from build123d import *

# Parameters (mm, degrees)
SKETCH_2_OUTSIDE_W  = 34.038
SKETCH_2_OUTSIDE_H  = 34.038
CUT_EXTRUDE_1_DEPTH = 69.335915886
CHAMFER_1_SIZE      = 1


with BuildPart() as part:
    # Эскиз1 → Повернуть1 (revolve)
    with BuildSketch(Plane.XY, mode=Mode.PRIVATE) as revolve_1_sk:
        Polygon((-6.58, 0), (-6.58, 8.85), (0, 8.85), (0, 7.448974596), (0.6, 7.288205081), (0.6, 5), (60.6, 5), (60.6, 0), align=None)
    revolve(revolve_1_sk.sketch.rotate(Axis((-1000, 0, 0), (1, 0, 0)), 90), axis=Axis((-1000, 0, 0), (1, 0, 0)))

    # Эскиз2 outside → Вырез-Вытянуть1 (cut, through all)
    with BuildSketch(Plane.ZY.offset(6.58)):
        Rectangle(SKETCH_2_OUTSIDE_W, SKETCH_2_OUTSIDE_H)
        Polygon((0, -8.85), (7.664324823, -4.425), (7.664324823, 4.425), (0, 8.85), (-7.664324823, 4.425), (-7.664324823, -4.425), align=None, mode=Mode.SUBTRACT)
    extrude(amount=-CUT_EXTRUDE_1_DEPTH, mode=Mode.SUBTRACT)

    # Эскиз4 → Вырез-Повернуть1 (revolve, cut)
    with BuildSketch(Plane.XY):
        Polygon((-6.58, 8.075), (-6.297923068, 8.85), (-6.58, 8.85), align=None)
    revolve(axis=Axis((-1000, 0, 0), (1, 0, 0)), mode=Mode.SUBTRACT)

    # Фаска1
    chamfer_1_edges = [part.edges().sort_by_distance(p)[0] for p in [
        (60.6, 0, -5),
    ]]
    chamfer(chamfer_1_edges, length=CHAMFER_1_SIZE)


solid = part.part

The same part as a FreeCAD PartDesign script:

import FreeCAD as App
import Part
import Sketcher
Q = App.Units.Quantity


def edges_at(feature, points):
    """Names of the edges that pass closest to the given points."""
    edges = feature.Shape.Edges
    near = lambda p: min(range(len(edges)), key=lambda i: edges[i].distToShape(Part.Vertex(*p))[0])
    return sorted({f"Edge{near(p) + 1}" for p in points})

doc = App.newDocument("Part")
params = doc.addObject("Spreadsheet::Sheet", "Params")
for row, (alias, value) in enumerate([
    ("sketch1_width", "60 mm"),
    ("sketch1_height", "5 mm"),
    ("sketch1_width2", "67.18 mm"),
    ("sketch1_width3", "6.58 mm"),
    ("sketch1_height2", "8.85 mm"),
    ("revolution_angle", "360 deg"),
    ("sketch2_width", "8.85 mm"),
    ("groove_angle", "360 deg"),
    ("chamfer_size", "1 mm"),
], start=1):
    params.set(f"A{row}", alias)
    params.set(f"B{row}", "=" + value)
    params.setAlias(f"B{row}", alias)

body = doc.addObject("PartDesign::Body", "Body")

sketch1 = body.newObject("Sketcher::SketchObject", "Sketch")
sketch1.AttachmentSupport = (doc.getObject("XY_Plane"), [""])
sketch1.MapMode = "FlatFace"
sketch1.addGeometry(Part.LineSegment(App.Vector(-6.6, 8.8, 0), App.Vector(-6.6, 0, 0)), False)
sketch1.addGeometry(Part.LineSegment(App.Vector(-6.6, 0, 0), App.Vector(60.6, 0, 0)), False)
sketch1.addGeometry(Part.LineSegment(App.Vector(60.6, 0, 0), App.Vector(60.6, 5, 0)), False)
sketch1.addGeometry(Part.LineSegment(App.Vector(60.6, 5, 0), App.Vector(0.6, 5, 0)), False)
sketch1.addGeometry(Part.LineSegment(App.Vector(0.6, 5, 0), App.Vector(0.6, 7.3, 0)), False)
sketch1.addGeometry(Part.LineSegment(App.Vector(0.6, 7.3, 0), App.Vector(0, 7.4, 0)), False)
sketch1.addGeometry(Part.LineSegment(App.Vector(0, 7.4, 0), App.Vector(0, 8.8, 0)), False)
sketch1.addGeometry(Part.LineSegment(App.Vector(0, 8.8, 0), App.Vector(-6.6, 8.8, 0)), False)
sketch1.addConstraint(Sketcher.Constraint("Coincident", 0, 2, 1, 1))
sketch1.addConstraint(Sketcher.Constraint("Coincident", 1, 2, 2, 1))
sketch1.addConstraint(Sketcher.Constraint("Coincident", 2, 2, 3, 1))
sketch1.addConstraint(Sketcher.Constraint("Coincident", 3, 2, 4, 1))
sketch1.addConstraint(Sketcher.Constraint("Coincident", 4, 2, 5, 1))
sketch1.addConstraint(Sketcher.Constraint("Coincident", 5, 2, 6, 1))
sketch1.addConstraint(Sketcher.Constraint("Coincident", 6, 2, 7, 1))
sketch1.addConstraint(Sketcher.Constraint("Coincident", 7, 2, 0, 1))
sketch1.addConstraint(Sketcher.Constraint("Vertical", 0))
sketch1.addConstraint(Sketcher.Constraint("Horizontal", 1))
sketch1.addConstraint(Sketcher.Constraint("Vertical", 2))
sketch1.addConstraint(Sketcher.Constraint("Horizontal", 3))
sketch1.addConstraint(Sketcher.Constraint("Vertical", 4))
sketch1.addConstraint(Sketcher.Constraint("Vertical", 6))
sketch1.addConstraint(Sketcher.Constraint("Horizontal", 7))
sketch1.addConstraint(Sketcher.Constraint("PointOnObject", 0, 2, -1))
sketch1.addConstraint(Sketcher.Constraint("PointOnObject", 5, 2, -2))
sketch1.addConstraint(Sketcher.Constraint("DistanceX", 3, 2, 3, 1, 60.0))
sketch1.addConstraint(Sketcher.Constraint("DistanceY", 2, 1, 2, 2, 5.0))
sketch1.addConstraint(Sketcher.Constraint("Angle", 5, Q("165 deg")))
sketch1.addConstraint(Sketcher.Constraint("DistanceX", 1, 1, 1, 2, 67.18))
sketch1.addConstraint(Sketcher.Constraint("DistanceX", 7, 2, 7, 1, 6.58))
sketch1.addConstraint(Sketcher.Constraint("DistanceY", 0, 2, 0, 1, 8.85))
sketch1.addConstraint(Sketcher.Constraint("DistanceY", 4, 1, 4, 2, 2.288205))
sketch1.setExpression("Constraints[17]", "Params.sketch1_width")
sketch1.setExpression("Constraints[18]", "Params.sketch1_height")
sketch1.setExpression("Constraints[20]", "Params.sketch1_width2")
sketch1.setExpression("Constraints[21]", "Params.sketch1_width3")
sketch1.setExpression("Constraints[22]", "Params.sketch1_height2")
revolution = body.newObject("PartDesign::Revolution", "Revolution")
revolution.Profile = sketch1
revolution.ReferenceAxis = (sketch1, ["H_Axis"])
revolution.setExpression("Angle", "Params.revolution_angle")

sketch2 = body.newObject("Sketcher::SketchObject", "Sketch001")
sketch2.AttachmentSupport = (doc.getObject("YZ_Plane"), [""])
sketch2.MapMode = "FlatFace"
sketch2.AttachmentOffset = App.Placement(App.Vector(0, 0, -6.58), App.Rotation())
sketch2.addGeometry(Part.LineSegment(App.Vector(17, -17, 0), App.Vector(-17, -17, 0)), False)
sketch2.addGeometry(Part.LineSegment(App.Vector(-17, -17, 0), App.Vector(-17, 17, 0)), False)
sketch2.addGeometry(Part.LineSegment(App.Vector(-17, 17, 0), App.Vector(17, 17, 0)), False)
sketch2.addGeometry(Part.LineSegment(App.Vector(17, 17, 0), App.Vector(17, -17, 0)), False)
sketch2.addGeometry(Part.LineSegment(App.Vector(-4, 8, 0), App.Vector(-9, 0, 0)), False)
sketch2.addGeometry(Part.LineSegment(App.Vector(-9, 0, 0), App.Vector(-4, -8, 0)), False)
sketch2.addGeometry(Part.LineSegment(App.Vector(-4, -8, 0), App.Vector(4, -8, 0)), False)
sketch2.addGeometry(Part.LineSegment(App.Vector(4, -8, 0), App.Vector(9, 0, 0)), False)
sketch2.addGeometry(Part.LineSegment(App.Vector(9, 0, 0), App.Vector(4, 8, 0)), False)
sketch2.addGeometry(Part.LineSegment(App.Vector(4, 8, 0), App.Vector(-4, 8, 0)), False)
sketch2.addConstraint(Sketcher.Constraint("Coincident", 0, 2, 1, 1))
sketch2.addConstraint(Sketcher.Constraint("Coincident", 1, 2, 2, 1))
sketch2.addConstraint(Sketcher.Constraint("Coincident", 2, 2, 3, 1))
sketch2.addConstraint(Sketcher.Constraint("Coincident", 3, 2, 0, 1))
sketch2.addConstraint(Sketcher.Constraint("Coincident", 4, 2, 5, 1))
sketch2.addConstraint(Sketcher.Constraint("Coincident", 5, 2, 6, 1))
sketch2.addConstraint(Sketcher.Constraint("Coincident", 6, 2, 7, 1))
sketch2.addConstraint(Sketcher.Constraint("Coincident", 7, 2, 8, 1))
sketch2.addConstraint(Sketcher.Constraint("Coincident", 8, 2, 9, 1))
sketch2.addConstraint(Sketcher.Constraint("Coincident", 9, 2, 4, 1))
sketch2.addConstraint(Sketcher.Constraint("Horizontal", 0))
sketch2.addConstraint(Sketcher.Constraint("Vertical", 1))
sketch2.addConstraint(Sketcher.Constraint("Horizontal", 2))
sketch2.addConstraint(Sketcher.Constraint("Vertical", 3))
sketch2.addConstraint(Sketcher.Constraint("Horizontal", 6))
sketch2.addConstraint(Sketcher.Constraint("Horizontal", 9))
sketch2.addConstraint(Sketcher.Constraint("Symmetric", 0, 2, 2, 2, -1, 1))
sketch2.addConstraint(Sketcher.Constraint("Symmetric", 4, 2, 7, 2, -1, 1))
sketch2.addConstraint(Sketcher.Constraint("Symmetric", 5, 2, 8, 2, -1, 1))
sketch2.addConstraint(Sketcher.Constraint("PointOnObject", 4, 2, -1))
sketch2.addConstraint(Sketcher.Constraint("Parallel", 4, 7))
sketch2.addConstraint(Sketcher.Constraint("Vertical", 6, 2, 8, 2))
sketch2.addConstraint(Sketcher.Constraint("Equal", 2, 1))
sketch2.addConstraint(Sketcher.Constraint("Angle", 4, Q("-120 deg")))
sketch2.addConstraint(Sketcher.Constraint("DistanceX", 6, 1, 6, 2, 8.85))
sketch2.addConstraint(Sketcher.Constraint("DistanceX", 4, 2, 7, 2, 17.7))
sketch2.addConstraint(Sketcher.Constraint("DistanceX", 0, 2, 0, 1, 34.038))
sketch2.setExpression("Constraints[24]", "Params.sketch2_width")
pocket1 = body.newObject("PartDesign::Pocket", "Pocket")
pocket1.Profile = sketch2
pocket1.Type = "ThroughAll"
pocket1.Reversed = True

sketch3 = body.newObject("Sketcher::SketchObject", "Sketch002")
sketch3.AttachmentSupport = (doc.getObject("XY_Plane"), [""])
sketch3.MapMode = "FlatFace"
sketch3.addGeometry(Part.LineSegment(App.Vector(-6.58, 8.07, 0), App.Vector(-6.3, 8.85, 0)), False)
sketch3.addGeometry(Part.LineSegment(App.Vector(-6.3, 8.85, 0), App.Vector(-6.58, 8.85, 0)), False)
sketch3.addGeometry(Part.LineSegment(App.Vector(-6.58, 8.85, 0), App.Vector(-6.58, 8.07, 0)), False)
sketch3.addConstraint(Sketcher.Constraint("Coincident", 0, 2, 1, 1))
sketch3.addConstraint(Sketcher.Constraint("Coincident", 1, 2, 2, 1))
sketch3.addConstraint(Sketcher.Constraint("Coincident", 2, 2, 0, 1))
sketch3.addConstraint(Sketcher.Constraint("Horizontal", 1))
sketch3.addConstraint(Sketcher.Constraint("Vertical", 2))
sketch3.addConstraint(Sketcher.Constraint("Angle", 0, Q("70 deg")))
sketch3.addConstraint(Sketcher.Constraint("DistanceY", 2, 2, 2, 1, 0.775))
sketch3.addConstraint(Sketcher.Constraint("DistanceY", -1, 1, 0, 2, 8.85))
sketch3.addConstraint(Sketcher.Constraint("DistanceX", 1, 2, -1, 1, 6.58))
groove = body.newObject("PartDesign::Groove", "Groove")
groove.Profile = sketch3
groove.ReferenceAxis = (sketch3, ["H_Axis"])
groove.setExpression("Angle", "Params.groove_angle")
doc.recompute()

chamfer = body.newObject("PartDesign::Chamfer", "Chamfer")
chamfer.Base = (groove, edges_at(groove, [(60.6, 0, -5)]))
chamfer.setExpression("Size", "Params.chamfer_size")

doc.recompute()
